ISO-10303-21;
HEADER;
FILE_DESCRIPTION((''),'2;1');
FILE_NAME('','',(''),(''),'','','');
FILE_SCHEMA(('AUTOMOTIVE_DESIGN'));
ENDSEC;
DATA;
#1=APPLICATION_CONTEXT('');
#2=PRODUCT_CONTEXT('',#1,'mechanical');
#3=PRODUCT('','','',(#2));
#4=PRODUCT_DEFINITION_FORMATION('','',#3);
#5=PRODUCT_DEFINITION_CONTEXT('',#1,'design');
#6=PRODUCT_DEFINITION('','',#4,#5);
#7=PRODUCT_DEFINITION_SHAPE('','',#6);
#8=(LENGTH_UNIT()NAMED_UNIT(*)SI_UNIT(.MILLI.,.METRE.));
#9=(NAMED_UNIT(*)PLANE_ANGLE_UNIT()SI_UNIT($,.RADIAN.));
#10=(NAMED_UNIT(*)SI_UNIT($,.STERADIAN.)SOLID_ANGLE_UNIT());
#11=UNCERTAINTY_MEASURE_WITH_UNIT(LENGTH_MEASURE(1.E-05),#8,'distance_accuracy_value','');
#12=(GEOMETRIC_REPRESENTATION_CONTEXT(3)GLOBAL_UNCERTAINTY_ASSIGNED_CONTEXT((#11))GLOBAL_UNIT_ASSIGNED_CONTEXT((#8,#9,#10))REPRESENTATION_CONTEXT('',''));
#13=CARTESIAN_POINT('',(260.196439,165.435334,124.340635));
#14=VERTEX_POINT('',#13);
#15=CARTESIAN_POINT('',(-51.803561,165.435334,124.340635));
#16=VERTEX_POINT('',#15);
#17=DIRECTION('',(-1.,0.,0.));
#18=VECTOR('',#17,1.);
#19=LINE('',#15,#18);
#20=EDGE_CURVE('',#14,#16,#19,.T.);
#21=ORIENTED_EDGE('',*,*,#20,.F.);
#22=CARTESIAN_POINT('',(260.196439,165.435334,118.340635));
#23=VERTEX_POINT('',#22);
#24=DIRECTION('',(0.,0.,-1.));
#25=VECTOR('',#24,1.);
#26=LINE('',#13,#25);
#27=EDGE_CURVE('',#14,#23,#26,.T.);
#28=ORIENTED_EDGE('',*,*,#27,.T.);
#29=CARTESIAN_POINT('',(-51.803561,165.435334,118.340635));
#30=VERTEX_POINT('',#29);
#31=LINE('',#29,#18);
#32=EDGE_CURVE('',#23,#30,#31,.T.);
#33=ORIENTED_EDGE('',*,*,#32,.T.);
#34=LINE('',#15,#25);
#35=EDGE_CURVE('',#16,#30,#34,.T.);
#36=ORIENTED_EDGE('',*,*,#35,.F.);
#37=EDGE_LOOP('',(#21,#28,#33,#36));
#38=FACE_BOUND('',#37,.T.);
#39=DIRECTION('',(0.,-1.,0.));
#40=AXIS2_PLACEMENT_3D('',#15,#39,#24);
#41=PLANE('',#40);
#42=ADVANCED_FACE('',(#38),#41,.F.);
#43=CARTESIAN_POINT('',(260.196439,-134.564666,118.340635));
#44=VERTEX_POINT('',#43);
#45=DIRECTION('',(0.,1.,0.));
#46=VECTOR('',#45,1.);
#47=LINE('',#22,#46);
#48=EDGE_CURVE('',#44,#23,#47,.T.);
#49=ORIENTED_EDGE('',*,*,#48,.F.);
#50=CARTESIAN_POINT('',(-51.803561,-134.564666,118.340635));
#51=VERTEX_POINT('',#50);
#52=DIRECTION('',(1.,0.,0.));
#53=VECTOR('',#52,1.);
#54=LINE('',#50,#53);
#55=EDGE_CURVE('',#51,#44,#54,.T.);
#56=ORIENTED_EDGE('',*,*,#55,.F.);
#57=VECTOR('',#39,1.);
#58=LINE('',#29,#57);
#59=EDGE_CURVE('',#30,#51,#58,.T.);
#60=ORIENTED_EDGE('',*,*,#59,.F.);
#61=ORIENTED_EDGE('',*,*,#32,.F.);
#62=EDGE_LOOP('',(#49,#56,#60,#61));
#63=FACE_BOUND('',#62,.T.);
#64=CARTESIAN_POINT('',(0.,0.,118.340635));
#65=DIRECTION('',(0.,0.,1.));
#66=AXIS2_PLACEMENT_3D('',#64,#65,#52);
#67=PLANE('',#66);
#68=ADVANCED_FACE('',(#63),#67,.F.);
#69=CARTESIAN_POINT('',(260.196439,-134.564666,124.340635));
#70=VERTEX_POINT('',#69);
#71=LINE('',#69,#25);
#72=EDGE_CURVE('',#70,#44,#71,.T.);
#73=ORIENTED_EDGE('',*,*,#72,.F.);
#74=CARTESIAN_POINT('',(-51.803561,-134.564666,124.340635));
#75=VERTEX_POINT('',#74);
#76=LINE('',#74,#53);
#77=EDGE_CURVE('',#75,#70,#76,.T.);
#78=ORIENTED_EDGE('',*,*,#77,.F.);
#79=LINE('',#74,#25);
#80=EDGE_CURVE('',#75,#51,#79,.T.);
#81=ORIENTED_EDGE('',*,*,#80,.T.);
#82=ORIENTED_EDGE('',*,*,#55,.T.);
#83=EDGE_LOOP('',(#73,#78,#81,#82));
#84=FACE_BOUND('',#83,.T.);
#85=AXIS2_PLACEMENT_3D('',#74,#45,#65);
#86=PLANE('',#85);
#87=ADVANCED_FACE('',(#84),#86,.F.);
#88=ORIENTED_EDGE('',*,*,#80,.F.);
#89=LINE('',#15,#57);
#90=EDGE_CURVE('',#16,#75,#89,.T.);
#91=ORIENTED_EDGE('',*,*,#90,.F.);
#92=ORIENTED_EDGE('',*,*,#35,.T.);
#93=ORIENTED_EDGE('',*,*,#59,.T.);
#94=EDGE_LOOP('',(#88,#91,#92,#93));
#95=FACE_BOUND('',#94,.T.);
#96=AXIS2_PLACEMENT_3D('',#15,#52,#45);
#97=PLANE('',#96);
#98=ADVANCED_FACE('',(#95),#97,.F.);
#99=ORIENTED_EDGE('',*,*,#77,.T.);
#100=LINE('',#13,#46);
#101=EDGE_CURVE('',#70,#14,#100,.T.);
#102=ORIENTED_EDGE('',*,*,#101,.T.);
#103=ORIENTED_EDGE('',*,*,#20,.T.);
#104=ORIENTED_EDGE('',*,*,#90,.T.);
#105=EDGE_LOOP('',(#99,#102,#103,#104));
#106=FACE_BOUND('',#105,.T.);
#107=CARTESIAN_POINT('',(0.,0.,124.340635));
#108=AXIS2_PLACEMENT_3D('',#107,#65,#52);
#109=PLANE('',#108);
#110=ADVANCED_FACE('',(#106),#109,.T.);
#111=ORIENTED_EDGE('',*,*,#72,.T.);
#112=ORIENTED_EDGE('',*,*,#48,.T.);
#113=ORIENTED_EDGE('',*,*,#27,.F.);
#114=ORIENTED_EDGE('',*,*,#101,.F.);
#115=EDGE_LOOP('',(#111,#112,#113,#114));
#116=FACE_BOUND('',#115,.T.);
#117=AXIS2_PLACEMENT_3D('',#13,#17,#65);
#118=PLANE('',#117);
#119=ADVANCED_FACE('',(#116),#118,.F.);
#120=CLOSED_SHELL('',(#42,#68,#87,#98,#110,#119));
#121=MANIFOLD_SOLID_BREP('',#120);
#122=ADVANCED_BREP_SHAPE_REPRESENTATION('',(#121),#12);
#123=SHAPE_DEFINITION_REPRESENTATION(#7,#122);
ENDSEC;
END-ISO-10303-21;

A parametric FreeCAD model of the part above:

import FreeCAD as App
import Part
import Sketcher
Q = App.Units.Quantity


def add_polygon(sketch, points):
    """Adds a closed chain of lines whose ends are joined by coincident constraints."""
    first, n = sketch.GeometryCount, len(points)
    for a, b in zip(points, points[1:] + points[:1]):
        sketch.addGeometry(Part.LineSegment(App.Vector(*a, 0), App.Vector(*b, 0)), False)
    for i in range(n):
        sketch.addConstraint(Sketcher.Constraint("Coincident", first + i, 2, first + (i + 1) % n, 1))

doc = App.newDocument("Part")
body = doc.addObject("PartDesign::Body", "Body")

# Sketch on XY plane
sketch1 = body.newObject("Sketcher::SketchObject", "Sketch")
sketch1.AttachmentSupport = (doc.getObject("XY_Plane"), [""])
sketch1.MapMode = "FlatFace"
sketch1.AttachmentOffset = App.Placement(App.Vector(0, 0, 118.340635), App.Rotation())
add_polygon(sketch1, [(-52, 165), (-52, -135), (260, -135), (260, 165)])  # lines 0-3
sketch1.addConstraint(Sketcher.Constraint("Vertical", 0))
sketch1.addConstraint(Sketcher.Constraint("Horizontal", 1))
sketch1.addConstraint(Sketcher.Constraint("Vertical", 2))
sketch1.addConstraint(Sketcher.Constraint("Horizontal", 3))
sketch1.addConstraint(Sketcher.Constraint("DistanceX", 1, 1, 1, 2, Q("312 mm")))
sketch1.addConstraint(Sketcher.Constraint("DistanceY", 0, 2, 0, 1, Q("300 mm")))
sketch1.addConstraint(Sketcher.Constraint("DistanceX", 0, 2, -1, 1, Q("51.803561 mm")))
sketch1.addConstraint(Sketcher.Constraint("DistanceY", 0, 2, -1, 1, Q("134.564666 mm")))
pad1 = body.newObject("PartDesign::Pad", "Pad")
pad1.Profile = sketch1
pad1.Length = 6

doc.recompute()
